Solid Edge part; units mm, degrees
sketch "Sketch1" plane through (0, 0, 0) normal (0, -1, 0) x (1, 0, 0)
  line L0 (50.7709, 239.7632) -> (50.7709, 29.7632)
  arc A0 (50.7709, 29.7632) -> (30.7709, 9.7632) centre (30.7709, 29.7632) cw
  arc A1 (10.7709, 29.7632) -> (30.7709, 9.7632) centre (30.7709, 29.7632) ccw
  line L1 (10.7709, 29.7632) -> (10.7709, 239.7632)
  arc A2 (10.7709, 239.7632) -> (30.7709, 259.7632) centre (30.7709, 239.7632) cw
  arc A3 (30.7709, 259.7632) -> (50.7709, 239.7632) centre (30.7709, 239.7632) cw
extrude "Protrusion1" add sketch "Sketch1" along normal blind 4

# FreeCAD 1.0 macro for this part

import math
import FreeCAD as App
import Part
import Sketcher
Q = App.Units.Quantity

doc = App.newDocument("Part")
params = doc.addObject("Spreadsheet::Sheet", "Params")
for row, (alias, value) in enumerate([
    ("sketch1_radius", "20 mm"),
    ("sketch1_height", "210 mm"),
    ("pad1_length", "4 mm"),
], start=1):
    params.set(f"A{row}", alias)
    params.set(f"B{row}", "=" + value)
    params.setAlias(f"B{row}", alias)

body = doc.addObject("PartDesign::Body", "Body")

sketch1 = doc.addObject("Sketcher::SketchObject", "Sketch")
body.addObject(sketch1)
sketch1.AttachmentSupport = (doc.XZ_Plane, [""])
sketch1.MapMode = "FlatFace"
sketch1.addGeometry([
    Part.LineSegment(App.Vector(51, 30, 0), App.Vector(51, 240, 0)),
    Part.ArcOfCircle(Part.Circle(App.Vector(31, 240, 0), App.Vector(0, 0, 1), 20), math.radians(0), math.radians(180)),
    Part.LineSegment(App.Vector(11, 240, 0), App.Vector(11, 30, 0)),
    Part.ArcOfCircle(Part.Circle(App.Vector(31, 30, 0), App.Vector(0, 0, 1), 20), math.radians(180), math.radians(360)),
], False)
sketch1.addConstraint([
    Sketcher.Constraint("Tangent", 0, 2, 1, 1),
    Sketcher.Constraint("Tangent", 1, 2, 2, 1),
    Sketcher.Constraint("Tangent", 2, 2, 3, 1),
    Sketcher.Constraint("Tangent", 3, 2, 0, 1),
    Sketcher.Constraint("Vertical", 0),
    Sketcher.Constraint("Vertical", 2),
    Sketcher.Constraint("Radius", 1, Q("20 mm")),
    Sketcher.Constraint("DistanceY", 0, 1, 0, 2, Q("210 mm")),
    Sketcher.Constraint("DistanceX", -1, 1, 1, 3, Q("30.771 mm")),
    Sketcher.Constraint("DistanceY", -1, 1, 1, 3, Q("239.7632 mm")),
])
sketch1.setExpression("Constraints[6]", "Params.sketch1_radius")
sketch1.setExpression("Constraints[7]", "Params.sketch1_height")
pad1 = doc.addObject("PartDesign::Pad", "Pad")
body.addObject(pad1)
pad1.Profile = sketch1
pad1.setExpression("Length", "Params.pad1_length")

doc.recompute()
